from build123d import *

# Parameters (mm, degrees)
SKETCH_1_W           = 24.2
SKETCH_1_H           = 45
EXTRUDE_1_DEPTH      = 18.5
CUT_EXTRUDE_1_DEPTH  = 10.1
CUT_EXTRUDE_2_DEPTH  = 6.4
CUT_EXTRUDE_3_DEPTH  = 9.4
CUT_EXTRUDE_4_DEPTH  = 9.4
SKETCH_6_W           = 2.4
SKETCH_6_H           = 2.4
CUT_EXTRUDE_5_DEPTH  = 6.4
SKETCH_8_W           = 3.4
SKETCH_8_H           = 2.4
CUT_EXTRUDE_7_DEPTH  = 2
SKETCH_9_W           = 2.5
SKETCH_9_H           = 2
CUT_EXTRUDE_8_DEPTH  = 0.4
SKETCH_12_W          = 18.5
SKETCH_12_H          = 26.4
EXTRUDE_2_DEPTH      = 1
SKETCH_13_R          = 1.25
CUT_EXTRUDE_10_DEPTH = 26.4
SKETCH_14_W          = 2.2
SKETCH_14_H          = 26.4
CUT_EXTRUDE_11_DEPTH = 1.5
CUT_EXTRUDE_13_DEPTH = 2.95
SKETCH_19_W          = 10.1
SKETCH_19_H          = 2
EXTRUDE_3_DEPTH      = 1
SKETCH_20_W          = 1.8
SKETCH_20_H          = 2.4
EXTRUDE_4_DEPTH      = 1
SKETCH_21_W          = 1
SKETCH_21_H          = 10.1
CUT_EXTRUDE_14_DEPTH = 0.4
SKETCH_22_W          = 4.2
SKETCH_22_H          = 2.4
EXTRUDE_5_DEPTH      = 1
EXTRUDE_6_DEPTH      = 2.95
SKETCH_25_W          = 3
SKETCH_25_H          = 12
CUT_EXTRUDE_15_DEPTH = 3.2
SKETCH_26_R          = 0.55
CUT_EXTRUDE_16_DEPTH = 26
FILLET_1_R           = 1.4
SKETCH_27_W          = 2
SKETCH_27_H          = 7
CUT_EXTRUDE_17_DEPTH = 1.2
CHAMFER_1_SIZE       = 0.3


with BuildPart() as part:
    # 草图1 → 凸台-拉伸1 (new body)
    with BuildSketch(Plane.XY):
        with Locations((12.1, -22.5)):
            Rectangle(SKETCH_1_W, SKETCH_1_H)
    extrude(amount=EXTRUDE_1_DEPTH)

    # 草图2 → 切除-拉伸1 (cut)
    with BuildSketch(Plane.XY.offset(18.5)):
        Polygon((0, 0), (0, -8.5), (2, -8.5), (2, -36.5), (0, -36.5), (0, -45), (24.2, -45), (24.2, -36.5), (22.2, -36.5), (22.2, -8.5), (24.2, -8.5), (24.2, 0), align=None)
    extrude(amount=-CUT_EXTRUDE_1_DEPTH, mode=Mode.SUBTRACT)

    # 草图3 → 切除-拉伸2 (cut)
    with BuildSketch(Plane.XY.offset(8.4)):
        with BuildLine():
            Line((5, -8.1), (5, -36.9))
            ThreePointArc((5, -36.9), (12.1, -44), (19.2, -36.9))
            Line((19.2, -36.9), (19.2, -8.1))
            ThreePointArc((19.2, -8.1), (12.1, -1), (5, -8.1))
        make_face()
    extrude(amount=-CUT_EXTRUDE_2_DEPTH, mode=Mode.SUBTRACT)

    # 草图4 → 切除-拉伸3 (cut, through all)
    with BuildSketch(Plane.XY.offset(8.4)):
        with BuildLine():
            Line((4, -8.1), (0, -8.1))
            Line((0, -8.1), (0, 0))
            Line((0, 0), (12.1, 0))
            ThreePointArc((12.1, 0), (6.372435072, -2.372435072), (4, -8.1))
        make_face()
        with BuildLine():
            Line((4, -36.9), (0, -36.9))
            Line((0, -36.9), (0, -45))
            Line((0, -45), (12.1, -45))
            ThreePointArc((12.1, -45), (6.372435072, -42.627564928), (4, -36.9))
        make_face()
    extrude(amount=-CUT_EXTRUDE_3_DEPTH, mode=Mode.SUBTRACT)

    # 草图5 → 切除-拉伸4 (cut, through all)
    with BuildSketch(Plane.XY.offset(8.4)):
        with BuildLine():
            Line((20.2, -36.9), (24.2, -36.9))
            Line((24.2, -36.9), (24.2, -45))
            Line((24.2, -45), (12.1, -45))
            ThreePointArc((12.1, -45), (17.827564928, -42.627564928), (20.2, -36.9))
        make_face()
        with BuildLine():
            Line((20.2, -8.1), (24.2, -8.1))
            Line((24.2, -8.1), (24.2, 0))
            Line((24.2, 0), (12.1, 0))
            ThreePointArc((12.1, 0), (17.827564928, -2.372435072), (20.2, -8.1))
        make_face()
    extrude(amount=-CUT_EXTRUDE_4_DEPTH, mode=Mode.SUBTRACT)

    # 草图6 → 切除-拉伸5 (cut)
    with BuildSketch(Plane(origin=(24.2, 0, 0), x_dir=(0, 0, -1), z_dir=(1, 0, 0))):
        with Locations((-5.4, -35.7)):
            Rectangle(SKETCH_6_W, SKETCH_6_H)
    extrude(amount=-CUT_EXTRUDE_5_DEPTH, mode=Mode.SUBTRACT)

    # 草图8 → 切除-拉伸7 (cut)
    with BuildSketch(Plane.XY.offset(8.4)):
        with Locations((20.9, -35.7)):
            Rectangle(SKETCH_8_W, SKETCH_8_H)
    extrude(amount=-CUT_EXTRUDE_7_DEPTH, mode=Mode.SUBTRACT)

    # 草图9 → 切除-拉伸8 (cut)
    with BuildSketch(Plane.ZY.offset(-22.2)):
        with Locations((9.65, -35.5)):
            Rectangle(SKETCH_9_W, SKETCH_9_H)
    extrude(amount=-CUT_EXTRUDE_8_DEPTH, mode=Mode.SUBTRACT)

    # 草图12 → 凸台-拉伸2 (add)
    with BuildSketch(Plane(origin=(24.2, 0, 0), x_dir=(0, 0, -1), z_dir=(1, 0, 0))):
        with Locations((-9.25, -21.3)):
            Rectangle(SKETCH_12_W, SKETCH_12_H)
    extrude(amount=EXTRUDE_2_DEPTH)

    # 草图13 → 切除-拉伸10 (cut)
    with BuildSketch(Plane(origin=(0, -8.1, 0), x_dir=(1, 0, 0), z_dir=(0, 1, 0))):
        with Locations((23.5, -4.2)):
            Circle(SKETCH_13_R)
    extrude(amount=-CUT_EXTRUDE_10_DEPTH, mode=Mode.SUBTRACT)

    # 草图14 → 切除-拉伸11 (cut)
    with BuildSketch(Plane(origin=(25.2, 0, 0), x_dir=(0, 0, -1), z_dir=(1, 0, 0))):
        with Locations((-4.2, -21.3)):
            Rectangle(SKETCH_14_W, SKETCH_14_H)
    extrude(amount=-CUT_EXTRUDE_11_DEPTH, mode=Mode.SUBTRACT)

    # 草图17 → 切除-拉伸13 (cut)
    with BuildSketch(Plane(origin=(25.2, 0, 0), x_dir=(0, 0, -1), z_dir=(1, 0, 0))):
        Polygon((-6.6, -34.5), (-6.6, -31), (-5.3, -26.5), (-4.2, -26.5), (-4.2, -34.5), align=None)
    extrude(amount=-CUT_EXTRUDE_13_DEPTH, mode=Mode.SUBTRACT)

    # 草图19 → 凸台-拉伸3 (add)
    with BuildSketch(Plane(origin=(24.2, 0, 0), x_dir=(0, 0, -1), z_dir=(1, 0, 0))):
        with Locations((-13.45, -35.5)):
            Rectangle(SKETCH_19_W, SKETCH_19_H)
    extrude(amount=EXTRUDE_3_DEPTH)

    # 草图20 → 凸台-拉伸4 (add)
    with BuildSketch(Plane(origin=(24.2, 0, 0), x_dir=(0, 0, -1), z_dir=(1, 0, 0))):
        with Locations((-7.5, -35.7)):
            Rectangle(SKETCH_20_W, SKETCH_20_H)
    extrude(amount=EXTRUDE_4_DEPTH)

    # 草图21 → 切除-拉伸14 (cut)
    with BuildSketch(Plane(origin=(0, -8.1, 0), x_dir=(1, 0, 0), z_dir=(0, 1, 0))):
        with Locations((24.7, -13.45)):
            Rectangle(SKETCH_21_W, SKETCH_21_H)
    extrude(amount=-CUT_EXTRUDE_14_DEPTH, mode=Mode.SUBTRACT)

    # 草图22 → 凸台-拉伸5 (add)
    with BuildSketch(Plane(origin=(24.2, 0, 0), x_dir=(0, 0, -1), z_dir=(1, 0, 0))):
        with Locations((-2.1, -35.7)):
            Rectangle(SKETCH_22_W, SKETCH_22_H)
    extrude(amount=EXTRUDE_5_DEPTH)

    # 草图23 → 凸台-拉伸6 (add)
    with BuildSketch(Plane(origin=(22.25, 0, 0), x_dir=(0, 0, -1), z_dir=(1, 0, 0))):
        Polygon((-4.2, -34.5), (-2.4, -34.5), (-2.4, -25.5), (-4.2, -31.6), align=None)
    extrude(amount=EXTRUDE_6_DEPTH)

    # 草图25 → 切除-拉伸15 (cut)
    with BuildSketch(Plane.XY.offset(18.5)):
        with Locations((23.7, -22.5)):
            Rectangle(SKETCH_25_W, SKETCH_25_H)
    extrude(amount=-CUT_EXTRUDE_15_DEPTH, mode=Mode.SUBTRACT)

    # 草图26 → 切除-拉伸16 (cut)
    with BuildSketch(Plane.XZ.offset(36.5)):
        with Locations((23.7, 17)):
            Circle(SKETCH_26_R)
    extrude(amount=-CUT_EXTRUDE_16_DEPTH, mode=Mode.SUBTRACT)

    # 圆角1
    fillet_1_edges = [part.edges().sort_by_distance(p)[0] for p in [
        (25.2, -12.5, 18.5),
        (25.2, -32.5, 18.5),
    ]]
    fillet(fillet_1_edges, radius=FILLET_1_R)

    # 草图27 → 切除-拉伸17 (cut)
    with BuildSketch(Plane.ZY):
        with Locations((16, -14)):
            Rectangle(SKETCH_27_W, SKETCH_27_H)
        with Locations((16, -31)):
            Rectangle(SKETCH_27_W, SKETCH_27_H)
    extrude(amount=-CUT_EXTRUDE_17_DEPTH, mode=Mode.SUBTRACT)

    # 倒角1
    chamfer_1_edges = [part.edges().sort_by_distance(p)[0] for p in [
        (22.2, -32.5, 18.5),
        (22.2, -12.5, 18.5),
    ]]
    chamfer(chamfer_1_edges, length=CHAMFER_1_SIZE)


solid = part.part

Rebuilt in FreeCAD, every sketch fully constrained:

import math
import FreeCAD as App
import Part
import Sketcher
Q = App.Units.Quantity


def edges_at(feature, points):
    """Names of the edges that pass closest to the given points."""
    edges = feature.Shape.Edges
    near = lambda p: min(range(len(edges)), key=lambda i: edges[i].distToShape(Part.Vertex(*p))[0])
    return sorted({f"Edge{near(p) + 1}" for p in points})

doc = App.newDocument("Part")
body = doc.addObject("PartDesign::Body", "Body")

# Sketch on XY plane
sketch1 = body.newObject("Sketcher::SketchObject", "Sketch")
sketch1.AttachmentSupport = (doc.getObject("XY_Plane"), [""])
sketch1.MapMode = "FlatFace"
sketch1.addGeometry(Part.LineSegment(App.Vector(0, 0, 0), App.Vector(0, -45, 0)), False)
sketch1.addGeometry(Part.LineSegment(App.Vector(0, -45, 0), App.Vector(24, -45, 0)), False)
sketch1.addGeometry(Part.LineSegment(App.Vector(24, -45, 0), App.Vector(24, 0, 0)), False)
sketch1.addGeometry(Part.LineSegment(App.Vector(24, 0, 0), App.Vector(0, 0, 0)), False)
sketch1.addConstraint(Sketcher.Constraint("Coincident", 0, 2, 1, 1))
sketch1.addConstraint(Sketcher.Constraint("Coincident", 1, 2, 2, 1))
sketch1.addConstraint(Sketcher.Constraint("Coincident", 2, 2, 3, 1))
sketch1.addConstraint(Sketcher.Constraint("Coincident", 3, 2, 0, 1))
sketch1.addConstraint(Sketcher.Constraint("Vertical", 0))
sketch1.addConstraint(Sketcher.Constraint("Horizontal", 1))
sketch1.addConstraint(Sketcher.Constraint("Vertical", 2))
sketch1.addConstraint(Sketcher.Constraint("Horizontal", 3))
sketch1.addConstraint(Sketcher.Constraint("Coincident", 3, 2, -1, 1))
sketch1.addConstraint(Sketcher.Constraint("DistanceY", 0, 2, 0, 1, Q("45 mm")))
sketch1.addConstraint(Sketcher.Constraint("DistanceX", 1, 1, 1, 2, Q("24.2 mm")))
pad1 = body.newObject("PartDesign::Pad", "Pad")
pad1.Profile = sketch1
pad1.Length = 18.5

# Sketch on XY plane
sketch2 = body.newObject("Sketcher::SketchObject", "Sketch001")
sketch2.AttachmentSupport = (doc.getObject("XY_Plane"), [""])
sketch2.MapMode = "FlatFace"
sketch2.AttachmentOffset = App.Placement(App.Vector(0, 0, 18.5), App.Rotation())
sketch2.addGeometry(Part.LineSegment(App.Vector(0, 0, 0), App.Vector(0, -8.5, 0)), False)
sketch2.addGeometry(Part.LineSegment(App.Vector(0, -8.5, 0), App.Vector(2, -8.5, 0)), False)
sketch2.addGeometry(Part.LineSegment(App.Vector(2, -8.5, 0), App.Vector(2, -36.5, 0)), False)
sketch2.addGeometry(Part.LineSegment(App.Vector(2, -36.5, 0), App.Vector(0, -36.5, 0)), False)
sketch2.addGeometry(Part.LineSegment(App.Vector(0, -36.5, 0), App.Vector(0, -45, 0)), False)
sketch2.addGeometry(Part.LineSegment(App.Vector(0, -45, 0), App.Vector(24.2, -45, 0)), False)
sketch2.addGeometry(Part.LineSegment(App.Vector(24.2, -45, 0), App.Vector(24.2, -36.5, 0)), False)
sketch2.addGeometry(Part.LineSegment(App.Vector(24.2, -36.5, 0), App.Vector(22.2, -36.5, 0)), False)
sketch2.addGeometry(Part.LineSegment(App.Vector(22.2, -36.5, 0), App.Vector(22.2, -8.5, 0)), False)
sketch2.addGeometry(Part.LineSegment(App.Vector(22.2, -8.5, 0), App.Vector(24.2, -8.5, 0)), False)
sketch2.addGeometry(Part.LineSegment(App.Vector(24.2, -8.5, 0), App.Vector(24.2, 0, 0)), False)
sketch2.addGeometry(Part.LineSegment(App.Vector(24.2, 0, 0), App.Vector(0, 0, 0)), False)
sketch2.addConstraint(Sketcher.Constraint("Coincident", 0, 2, 1, 1))
sketch2.addConstraint(Sketcher.Constraint("Coincident", 1, 2, 2, 1))
sketch2.addConstraint(Sketcher.Constraint("Coincident", 2, 2, 3, 1))
sketch2.addConstraint(Sketcher.Constraint("Coincident", 3, 2, 4, 1))
sketch2.addConstraint(Sketcher.Constraint("Coincident", 4, 2, 5, 1))
sketch2.addConstraint(Sketcher.Constraint("Coincident", 5, 2, 6, 1))
sketch2.addConstraint(Sketcher.Constraint("Coincident", 6, 2, 7, 1))
sketch2.addConstraint(Sketcher.Constraint("Coincident", 7, 2, 8, 1))
sketch2.addConstraint(Sketcher.Constraint("Coincident", 8, 2, 9, 1))
sketch2.addConstraint(Sketcher.Constraint("Coincident", 9, 2, 10, 1))
sketch2.addConstraint(Sketcher.Constraint("Coincident", 10, 2, 11, 1))
sketch2.addConstraint(Sketcher.Constraint("Coincident", 11, 2, 0, 1))
sketch2.addConstraint(Sketcher.Constraint("Vertical", 0))
sketch2.addConstraint(Sketcher.Constraint("Horizontal", 1))
sketch2.addConstraint(Sketcher.Constraint("Vertical", 2))
sketch2.addConstraint(Sketcher.Constraint("Horizontal", 3))
sketch2.addConstraint(Sketcher.Constraint("Vertical", 4))
sketch2.addConstraint(Sketcher.Constraint("Horizontal", 5))
sketch2.addConstraint(Sketcher.Constraint("Vertical", 6))
sketch2.addConstraint(Sketcher.Constraint("Horizontal", 7))
sketch2.addConstraint(Sketcher.Constraint("Vertical", 8))
sketch2.addConstraint(Sketcher.Constraint("Horizontal", 9))
sketch2.addConstraint(Sketcher.Constraint("Vertical", 10))
sketch2.addConstraint(Sketcher.Constraint("Horizontal", 11))
sketch2.addConstraint(Sketcher.Constraint("Coincident", 11, 2, -1, 1))
sketch2.addConstraint(Sketcher.Constraint("PointOnObject", 3, 2, -2))
sketch2.addConstraint(Sketcher.Constraint("Horizontal", 3, 2, 6, 2))
sketch2.addConstraint(Sketcher.Constraint("Horizontal", 1, 2, 8, 2))
sketch2.addConstraint(Sketcher.Constraint("Vertical", 6, 2, 9, 2))
sketch2.addConstraint(Sketcher.Constraint("Equal", 3, 7))
sketch2.addConstraint(Sketcher.Constraint("Equal", 0, 4))
sketch2.addConstraint(Sketcher.Constraint("DistanceX", 1, 1, 1, 2, Q("2 mm")))
sketch2.addConstraint(Sketcher.Constraint("DistanceY", 2, 2, 2, 1, Q("28 mm")))
sketch2.addConstraint(Sketcher.Constraint("DistanceX", 5, 1, 5, 2, Q("24.2 mm")))
sketch2.addConstraint(Sketcher.Constraint("DistanceY", 0, 2, 0, 1, Q("8.5 mm")))
pocket1 = body.newObject("PartDesign::Pocket", "Pocket")
pocket1.Profile = sketch2
pocket1.Length = 10.1

# Sketch on XY plane
sketch3 = body.newObject("Sketcher::SketchObject", "Sketch002")
sketch3.AttachmentSupport = (doc.getObject("XY_Plane"), [""])
sketch3.MapMode = "FlatFace"
sketch3.AttachmentOffset = App.Placement(App.Vector(0, 0, 8.4), App.Rotation())
sketch3.addGeometry(Part.LineSegment(App.Vector(5, -8, 0), App.Vector(5, -37, 0)), False)
sketch3.addGeometry(Part.ArcOfCircle(Part.Circle(App.Vector(12, -37, 0), App.Vector(0, 0, 1), 7), math.radians(180), math.radians(360)), False)
sketch3.addGeometry(Part.LineSegment(App.Vector(19, -37, 0), App.Vector(19, -8, 0)), False)
sketch3.addGeometry(Part.ArcOfCircle(Part.Circle(App.Vector(12, -8, 0), App.Vector(0, 0, 1), 7), math.radians(0), math.radians(180)), False)
sketch3.addConstraint(Sketcher.Constraint("Tangent", 0, 2, 1, 1))
sketch3.addConstraint(Sketcher.Constraint("Tangent", 1, 2, 2, 1))
sketch3.addConstraint(Sketcher.Constraint("Tangent", 2, 2, 3, 1))
sketch3.addConstraint(Sketcher.Constraint("Tangent", 3, 2, 0, 1))
sketch3.addConstraint(Sketcher.Constraint("Vertical", 0))
sketch3.addConstraint(Sketcher.Constraint("Vertical", 2))
sketch3.addConstraint(Sketcher.Constraint("Radius", 1, Q("7.1 mm")))
sketch3.addConstraint(Sketcher.Constraint("DistanceY", 0, 2, 0, 1, Q("28.8 mm")))
sketch3.addConstraint(Sketcher.Constraint("DistanceX", -1, 1, 0, 2, Q("5 mm")))
sketch3.addConstraint(Sketcher.Constraint("DistanceY", 1, 3, -1, 1, Q("36.9 mm")))
pocket2 = body.newObject("PartDesign::Pocket", "Pocket001")
pocket2.Profile = sketch3
pocket2.Length = 6.4

# Sketch on XY plane
sketch4 = body.newObject("Sketcher::SketchObject", "Sketch003")
sketch4.AttachmentSupport = (doc.getObject("XY_Plane"), [""])
sketch4.MapMode = "FlatFace"
sketch4.AttachmentOffset = App.Placement(App.Vector(0, 0, 8.4), App.Rotation())
sketch4.addGeometry(Part.LineSegment(App.Vector(0, -8.1, 0), App.Vector(4, -8.1, 0)), False)
sketch4.addGeometry(Part.ArcOfCircle(Part.Circle(App.Vector(12.1, -8.1, 0), App.Vector(0, 0, 1), 8.1), math.radians(90), math.radians(180)), False)
sketch4.addGeometry(Part.LineSegment(App.Vector(12.1, 0, 0), App.Vector(0, 0, 0)), False)
sketch4.addGeometry(Part.LineSegment(App.Vector(0, 0, 0), App.Vector(0, -8.1, 0)), False)
sketch4.addGeometry(Part.LineSegment(App.Vector(4, -36.9, 0), App.Vector(0, -36.9, 0)), False)
sketch4.addGeometry(Part.LineSegment(App.Vector(0, -36.9, 0), App.Vector(0, -45, 0)), False)
sketch4.addGeometry(Part.LineSegment(App.Vector(0, -45, 0), App.Vector(12.1, -45, 0)), False)
sketch4.addGeometry(Part.ArcOfCircle(Part.Circle(App.Vector(12.1, -36.9, 0), App.Vector(0, 0, 1), 8.1), math.radians(180), math.radians(270)), False)
sketch4.addConstraint(Sketcher.Constraint("Coincident", 0, 2, 1, 2))
sketch4.addConstraint(Sketcher.Constraint("Tangent", 1, 1, 2, 1))
sketch4.addConstraint(Sketcher.Constraint("Coincident", 2, 2, 3, 1))
sketch4.addConstraint(Sketcher.Constraint("Coincident", 3, 2, 0, 1))
sketch4.addConstraint(Sketcher.Constraint("Coincident", 4, 2, 5, 1))
sketch4.addConstraint(Sketcher.Constraint("Coincident", 5, 2, 6, 1))
sketch4.addConstraint(Sketcher.Constraint("Tangent", 6, 2, 7, 2))
sketch4.addConstraint(Sketcher.Constraint("Coincident", 7, 1, 4, 1))
sketch4.addConstraint(Sketcher.Constraint("Horizontal", 0))
sketch4.addConstraint(Sketcher.Constraint("Horizontal", 2))
sketch4.addConstraint(Sketcher.Constraint("Vertical", 3))
sketch4.addConstraint(Sketcher.Constraint("Horizontal", 4))
sketch4.addConstraint(Sketcher.Constraint("Vertical", 5))
sketch4.addConstraint(Sketcher.Constraint("Horizontal", 6))
sketch4.addConstraint(Sketcher.Constraint("Coincident", 2, 2, -1, 1))
sketch4.addConstraint(Sketcher.Constraint("Equal", 1, 7))
sketch4.addConstraint(Sketcher.Constraint("PointOnObject", 4, 2, -2))
sketch4.addConstraint(Sketcher.Constraint("Horizontal", 1, 3, 0, 2))
sketch4.addConstraint(Sketcher.Constraint("Horizontal", 7, 3, 4, 2))
sketch4.addConstraint(Sketcher.Constraint("Vertical", 1, 3, 7, 3))
sketch4.addConstraint(Sketcher.Constraint("Radius", 1, Q("8.1 mm")))
sketch4.addConstraint(Sketcher.Constraint("DistanceX", 0, 1, 0, 2, Q("4 mm")))
sketch4.addConstraint(Sketcher.Constraint("DistanceY", 5, 2, -1, 1, Q("45 mm")))
pocket3 = body.newObject("PartDesign::Pocket", "Pocket002")
pocket3.Profile = sketch4
pocket3.Type = "ThroughAll"

# Sketch on XY plane
sketch5 = body.newObject("Sketcher::SketchObject", "Sketch004")
sketch5.AttachmentSupport = (doc.getObject("XY_Plane"), [""])
sketch5.MapMode = "FlatFace"
sketch5.AttachmentOffset = App.Placement(App.Vector(0, 0, 8.4), App.Rotation())
sketch5.addGeometry(Part.LineSegment(App.Vector(24.2, -36.9, 0), App.Vector(20.2, -36.9, 0)), False)
sketch5.addGeometry(Part.ArcOfCircle(Part.Circle(App.Vector(12.1, -36.9, 0), App.Vector(0, 0, 1), 8.1), math.radians(-90), math.radians(0)), False)
sketch5.addGeometry(Part.LineSegment(App.Vector(12.1, -45, 0), App.Vector(24.2, -45, 0)), False)
sketch5.addGeometry(Part.LineSegment(App.Vector(24.2, -45, 0), App.Vector(24.2, -36.9, 0)), False)
sketch5.addGeometry(Part.LineSegment(App.Vector(20.2, -8.1, 0), App.Vector(24.2, -8.1, 0)), False)
sketch5.addGeometry(Part.LineSegment(App.Vector(24.2, -8.1, 0), App.Vector(24.2, 0, 0)), False)
sketch5.addGeometry(Part.LineSegment(App.Vector(24.2, 0, 0), App.Vector(12.1, 0, 0)), False)
sketch5.addGeometry(Part.ArcOfCircle(Part.Circle(App.Vector(12.1, -8.1, 0), App.Vector(0, 0, 1), 8.1), math.radians(0), math.radians(90)), False)
sketch5.addConstraint(Sketcher.Constraint("Coincident", 0, 2, 1, 2))
sketch5.addConstraint(Sketcher.Constraint("Tangent", 1, 1, 2, 1))
sketch5.addConstraint(Sketcher.Constraint("Coincident", 2, 2, 3, 1))
sketch5.addConstraint(Sketcher.Constraint("Coincident", 3, 2, 0, 1))
sketch5.addConstraint(Sketcher.Constraint("Coincident", 4, 2, 5, 1))
sketch5.addConstraint(Sketcher.Constraint("Coincident", 5, 2, 6, 1))
sketch5.addConstraint(Sketcher.Constraint("Tangent", 6, 2, 7, 2))
sketch5.addConstraint(Sketcher.Constraint("Coincident", 7, 1, 4, 1))
sketch5.addConstraint(Sketcher.Constraint("Horizontal", 0))
sketch5.addConstraint(Sketcher.Constraint("Horizontal", 2))
sketch5.addConstraint(Sketcher.Constraint("Vertical", 3))
sketch5.addConstraint(Sketcher.Constraint("Horizontal", 4))
sketch5.addConstraint(Sketcher.Constraint("Vertical", 5))
sketch5.addConstraint(Sketcher.Constraint("Horizontal", 6))
sketch5.addConstraint(Sketcher.Constraint("Equal", 1, 7))
sketch5.addConstraint(Sketcher.Constraint("PointOnObject", 5, 2, -1))
sketch5.addConstraint(Sketcher.Constraint("Horizontal", 1, 3, 0, 2))
sketch5.addConstraint(Sketcher.Constraint("Horizontal", 7, 3, 4, 2))
sketch5.addConstraint(Sketcher.Constraint("Vertical", 1, 3, 7, 3))
sketch5.addConstraint(Sketcher.Constraint("Vertical", 3, 2, 4, 2))
sketch5.addConstraint(Sketcher.Constraint("Radius", 1, Q("8.1 mm")))
sketch5.addConstraint(Sketcher.Constraint("DistanceX", 0, 2, 0, 1, Q("4 mm")))
sketch5.addConstraint(Sketcher.Constraint("DistanceY", 1, 1, -1, 1, Q("45 mm")))
sketch5.addConstraint(Sketcher.Constraint("DistanceX", -1, 1, 1, 3, Q("12.1 mm")))
pocket4 = body.newObject("PartDesign::Pocket", "Pocket003")
pocket4.Profile = sketch5
pocket4.Type = "ThroughAll"

# Sketch on YZ plane
sketch6 = body.newObject("Sketcher::SketchObject", "Sketch005")
sketch6.AttachmentSupport = (doc.getObject("YZ_Plane"), [""])
sketch6.MapMode = "FlatFace"
sketch6.AttachmentOffset = App.Placement(App.Vector(0, 0, 24.2), App.Rotation())
sketch6.addGeometry(Part.LineSegment(App.Vector(-34.5, 6.6, 0), App.Vector(-36.9, 6.6, 0)), False)
sketch6.addGeometry(Part.LineSegment(App.Vector(-36.9, 6.6, 0), App.Vector(-36.9, 4.2, 0)), False)
sketch6.addGeometry(Part.LineSegment(App.Vector(-36.9, 4.2, 0), App.Vector(-34.5, 4.2, 0)), False)
sketch6.addGeometry(Part.LineSegment(App.Vector(-34.5, 4.2, 0), App.Vector(-34.5, 6.6, 0)), False)
sketch6.addConstraint(Sketcher.Constraint("Coincident", 0, 2, 1, 1))
sketch6.addConstraint(Sketcher.Constraint("Coincident", 1, 2, 2, 1))
sketch6.addConstraint(Sketcher.Constraint("Coincident", 2, 2, 3, 1))
sketch6.addConstraint(Sketcher.Constraint("Coincident", 3, 2, 0, 1))
sketch6.addConstraint(Sketcher.Constraint("Horizontal", 0))
sketch6.addConstraint(Sketcher.Constraint("Vertical", 1))
sketch6.addConstraint(Sketcher.Constraint("Horizontal", 2))
sketch6.addConstraint(Sketcher.Constraint("Vertical", 3))
sketch6.addConstraint(Sketcher.Constraint("Equal", 2, 1))
sketch6.addConstraint(Sketcher.Constraint("DistanceX", 0, 2, 0, 1, Q("2.4 mm")))
sketch6.addConstraint(Sketcher.Constraint("DistanceX", 0, 2, -1, 1, Q("36.9 mm")))
sketch6.addConstraint(Sketcher.Constraint("DistanceY", -1, 1, 0, 2, Q("6.6 mm")))
pocket5 = body.newObject("PartDesign::Pocket", "Pocket004")
pocket5.Profile = sketch6
pocket5.Length = 6.4

# Sketch on XY plane
sketch7 = body.newObject("Sketcher::SketchObject", "Sketch006")
sketch7.AttachmentSupport = (doc.getObject("XY_Plane"), [""])
sketch7.MapMode = "FlatFace"
sketch7.AttachmentOffset = App.Placement(App.Vector(0, 0, 8.4), App.Rotation())
sketch7.addGeometry(Part.LineSegment(App.Vector(19.2, -34.5, 0), App.Vector(19.2, -36.9, 0)), False)
sketch7.addGeometry(Part.LineSegment(App.Vector(19.2, -36.9, 0), App.Vector(22.6, -36.9, 0)), False)
sketch7.addGeometry(Part.LineSegment(App.Vector(22.6, -36.9, 0), App.Vector(22.6, -34.5, 0)), False)
sketch7.addGeometry(Part.LineSegment(App.Vector(22.6, -34.5, 0), App.Vector(19.2, -34.5, 0)), False)
sketch7.addConstraint(Sketcher.Constraint("Coincident", 0, 2, 1, 1))
sketch7.addConstraint(Sketcher.Constraint("Coincident", 1, 2, 2, 1))
sketch7.addConstraint(Sketcher.Constraint("Coincident", 2, 2, 3, 1))
sketch7.addConstraint(Sketcher.Constraint("Coincident", 3, 2, 0, 1))
sketch7.addConstraint(Sketcher.Constraint("Vertical", 0))
sketch7.addConstraint(Sketcher.Constraint("Horizontal", 1))
sketch7.addConstraint(Sketcher.Constraint("Vertical", 2))
sketch7.addConstraint(Sketcher.Constraint("Horizontal", 3))
sketch7.addConstraint(Sketcher.Constraint("DistanceX", 1, 1, 1, 2, Q("3.4 mm")))
sketch7.addConstraint(Sketcher.Constraint("DistanceY", 0, 2, 0, 1, Q("2.4 mm")))
sketch7.addConstraint(Sketcher.Constraint("DistanceX", -1, 1, 0, 2, Q("19.2 mm")))
sketch7.addConstraint(Sketcher.Constraint("DistanceY", 0, 2, -1, 1, Q("36.9 mm")))
pocket6 = body.newObject("PartDesign::Pocket", "Pocket005")
pocket6.Profile = sketch7
pocket6.Length = 2

# Sketch on YZ plane
sketch8 = body.newObject("Sketcher::SketchObject", "Sketch007")
sketch8.AttachmentSupport = (doc.getObject("YZ_Plane"), [""])
sketch8.MapMode = "FlatFace"
sketch8.AttachmentOffset = App.Placement(App.Vector(0, 0, 22.2), App.Rotation())
sketch8.addGeometry(Part.LineSegment(App.Vector(-34.5, 8.4, 0), App.Vector(-36.5, 8.4, 0)), False)
sketch8.addGeometry(Part.LineSegment(App.Vector(-36.5, 8.4, 0), App.Vector(-36.5, 10.9, 0)), False)
sketch8.addGeometry(Part.LineSegment(App.Vector(-36.5, 10.9, 0), App.Vector(-34.5, 10.9, 0)), False)
sketch8.addGeometry(Part.LineSegment(App.Vector(-34.5, 10.9, 0), App.Vector(-34.5, 8.4, 0)), False)
sketch8.addConstraint(Sketcher.Constraint("Coincident", 0, 2, 1, 1))
sketch8.addConstraint(Sketcher.Constraint("Coincident", 1, 2, 2, 1))
sketch8.addConstraint(Sketcher.Constraint("Coincident", 2, 2, 3, 1))
sketch8.addConstraint(Sketcher.Constraint("Coincident", 3, 2, 0, 1))
sketch8.addConstraint(Sketcher.Constraint("Horizontal", 0))
sketch8.addConstraint(Sketcher.Constraint("Vertical", 1))
sketch8.addConstraint(Sketcher.Constraint("Horizontal", 2))
sketch8.addConstraint(Sketcher.Constraint("Vertical", 3))
sketch8.addConstraint(Sketcher.Constraint("DistanceX", 0, 2, 0, 1, Q("2 mm")))
sketch8.addConstraint(Sketcher.Constraint("DistanceY", 1, 1, 1, 2, Q("2.5 mm")))
sketch8.addConstraint(Sketcher.Constraint("DistanceX", 0, 2, -1, 1, Q("36.5 mm")))
sketch8.addConstraint(Sketcher.Constraint("DistanceY", -1, 1, 0, 2, Q("8.4 mm")))
pocket7 = body.newObject("PartDesign::Pocket", "Pocket006")
pocket7.Profile = sketch8
pocket7.Length = 0.4
pocket7.Reversed = True

# Sketch on YZ plane
sketch9 = body.newObject("Sketcher::SketchObject", "Sketch008")
sketch9.AttachmentSupport = (doc.getObject("YZ_Plane"), [""])
sketch9.MapMode = "FlatFace"
sketch9.AttachmentOffset = App.Placement(App.Vector(0, 0, 24.2), App.Rotation())
sketch9.addGeometry(Part.LineSegment(App.Vector(-8, 18, 0), App.Vector(-34, 18, 0)), False)
sketch9.addGeometry(Part.LineSegment(App.Vector(-34, 18, 0), App.Vector(-34, 0, 0)), False)
sketch9.addGeometry(Part.LineSegment(App.Vector(-34, 0, 0), App.Vector(-8, 0, 0)), False)
sketch9.addGeometry(Part.LineSegment(App.Vector(-8, 0, 0), App.Vector(-8, 18, 0)), False)
sketch9.addConstraint(Sketcher.Constraint("Coincident", 0, 2, 1, 1))
sketch9.addConstraint(Sketcher.Constraint("Coincident", 1, 2, 2, 1))
sketch9.addConstraint(Sketcher.Constraint("Coincident", 2, 2, 3, 1))
sketch9.addConstraint(Sketcher.Constraint("Coincident", 3, 2, 0, 1))
sketch9.addConstraint(Sketcher.Constraint("Horizontal", 0))
sketch9.addConstraint(Sketcher.Constraint("Vertical", 1))
sketch9.addConstraint(Sketcher.Constraint("Horizontal", 2))
sketch9.addConstraint(Sketcher.Constraint("Vertical", 3))
sketch9.addConstraint(Sketcher.Constraint("PointOnObject", 1, 2, -1))
sketch9.addConstraint(Sketcher.Constraint("DistanceX", 0, 2, 0, 1, Q("26.4 mm")))
sketch9.addConstraint(Sketcher.Constraint("DistanceY", 1, 2, 1, 1, Q("18.5 mm")))
sketch9.addConstraint(Sketcher.Constraint("DistanceX", 0, 2, -1, 1, Q("34.5 mm")))
pad2 = body.newObject("PartDesign::Pad", "Pad001")
pad2.Profile = sketch9
pad2.Length = 1

# Sketch on XZ plane
sketch10 = body.newObject("Sketcher::SketchObject", "Sketch009")
sketch10.AttachmentSupport = (doc.getObject("XZ_Plane"), [""])
sketch10.MapMode = "FlatFace"
sketch10.AttachmentOffset = App.Placement(App.Vector(0, 0, 8.1), App.Rotation())
sketch10.addGeometry(Part.Circle(App.Vector(23.5, 4.2, 0), App.Vector(0, 0, 1), 1.2), False)
sketch10.addConstraint(Sketcher.Constraint("Diameter", 0, Q("2.5 mm")))
sketch10.addConstraint(Sketcher.Constraint("DistanceX", -1, 1, 0, 3, Q("23.5 mm")))
sketch10.addConstraint(Sketcher.Constraint("DistanceY", -1, 1, 0, 3, Q("4.2 mm")))
pocket8 = body.newObject("PartDesign::Pocket", "Pocket007")
pocket8.Profile = sketch10
pocket8.Length = 26.4
pocket8.Reversed = True

# Sketch on YZ plane
sketch11 = body.newObject("Sketcher::SketchObject", "Sketch010")
sketch11.AttachmentSupport = (doc.getObject("YZ_Plane"), [""])
sketch11.MapMode = "FlatFace"
sketch11.AttachmentOffset = App.Placement(App.Vector(0, 0, 25.2), App.Rotation())
sketch11.addGeometry(Part.LineSegment(App.Vector(-8.1, 5.3, 0), App.Vector(-34.5, 5.3, 0)), False)
sketch11.addGeometry(Part.LineSegment(App.Vector(-34.5, 5.3, 0), App.Vector(-34.5, 3.1, 0)), False)
sketch11.addGeometry(Part.LineSegment(App.Vector(-34.5, 3.1, 0), App.Vector(-8.1, 3.1, 0)), False)
sketch11.addGeometry(Part.LineSegment(App.Vector(-8.1, 3.1, 0), App.Vector(-8.1, 5.3, 0)), False)
sketch11.addConstraint(Sketcher.Constraint("Coincident", 0, 2, 1, 1))
sketch11.addConstraint(Sketcher.Constraint("Coincident", 1, 2, 2, 1))
sketch11.addConstraint(Sketcher.Constraint("Coincident", 2, 2, 3, 1))
sketch11.addConstraint(Sketcher.Constraint("Coincident", 3, 2, 0, 1))
sketch11.addConstraint(Sketcher.Constraint("Horizontal", 0))
sketch11.addConstraint(Sketcher.Constraint("Vertical", 1))
sketch11.addConstraint(Sketcher.Constraint("Horizontal", 2))
sketch11.addConstraint(Sketcher.Constraint("Vertical", 3))
sketch11.addConstraint(Sketcher.Constraint("DistanceX", 0, 2, 0, 1, Q("26.4 mm")))
sketch11.addConstraint(Sketcher.Constraint("DistanceY", 1, 2, 1, 1, Q("2.2 mm")))
sketch11.addConstraint(Sketcher.Constraint("DistanceX", 0, 2, -1, 1, Q("34.5 mm")))
sketch11.addConstraint(Sketcher.Constraint("DistanceY", -1, 1, 0, 2, Q("5.3 mm")))
pocket9 = body.newObject("PartDesign::Pocket", "Pocket008")
pocket9.Profile = sketch11
pocket9.Length = 1.5

# Sketch on YZ plane
sketch12 = body.newObject("Sketcher::SketchObject", "Sketch011")
sketch12.AttachmentSupport = (doc.getObject("YZ_Plane"), [""])
sketch12.MapMode = "FlatFace"
sketch12.AttachmentOffset = App.Placement(App.Vector(0, 0, 25.2), App.Rotation())
sketch12.addGeometry(Part.LineSegment(App.Vector(-31, 6.6, 0), App.Vector(-34.5, 6.6, 0)), False)
sketch12.addGeometry(Part.LineSegment(App.Vector(-34.5, 6.6, 0), App.Vector(-34.5, 4.2, 0)), False)
sketch12.addGeometry(Part.LineSegment(App.Vector(-34.5, 4.2, 0), App.Vector(-26.5, 4.2, 0)), False)
sketch12.addGeometry(Part.LineSegment(App.Vector(-26.5, 4.2, 0), App.Vector(-26.5, 5.3, 0)), False)
sketch12.addGeometry(Part.LineSegment(App.Vector(-26.5, 5.3, 0), App.Vector(-31, 6.6, 0)), False)
sketch12.addConstraint(Sketcher.Constraint("Coincident", 0, 2, 1, 1))
sketch12.addConstraint(Sketcher.Constraint("Coincident", 1, 2, 2, 1))
sketch12.addConstraint(Sketcher.Constraint("Coincident", 2, 2, 3, 1))
sketch12.addConstraint(Sketcher.Constraint("Coincident", 3, 2, 4, 1))
sketch12.addConstraint(Sketcher.Constraint("Coincident", 4, 2, 0, 1))
sketch12.addConstraint(Sketcher.Constraint("Horizontal", 0))
sketch12.addConstraint(Sketcher.Constraint("Vertical", 1))
sketch12.addConstraint(Sketcher.Constraint("Horizontal", 2))
sketch12.addConstraint(Sketcher.Constraint("Vertical", 3))
sketch12.addConstraint(Sketcher.Constraint("DistanceX", 2, 1, 2, 2, Q("8 mm")))
sketch12.addConstraint(Sketcher.Constraint("DistanceX", 0, 2, 0, 1, Q("3.5 mm")))
sketch12.addConstraint(Sketcher.Constraint("DistanceY", 1, 2, 1, 1, Q("2.4 mm")))
sketch12.addConstraint(Sketcher.Constraint("DistanceY", 3, 1, 3, 2, Q("1.1 mm")))
sketch12.addConstraint(Sketcher.Constraint("DistanceX", 4, 2, -1, 1, Q("31 mm")))
sketch12.addConstraint(Sketcher.Constraint("DistanceY", -1, 1, 0, 2, Q("6.6 mm")))
pocket10 = body.newObject("PartDesign::Pocket", "Pocket009")
pocket10.Profile = sketch12
pocket10.Length = 2.95

# Sketch on YZ plane
sketch13 = body.newObject("Sketcher::SketchObject", "Sketch012")
sketch13.AttachmentSupport = (doc.getObject("YZ_Plane"), [""])
sketch13.MapMode = "FlatFace"
sketch13.AttachmentOffset = App.Placement(App.Vector(0, 0, 24.2), App.Rotation())
sketch13.addGeometry(Part.LineSegment(App.Vector(-34.5, 18.5, 0), App.Vector(-36.5, 18.5, 0)), False)
sketch13.addGeometry(Part.LineSegment(App.Vector(-36.5, 18.5, 0), App.Vector(-36.5, 8.4, 0)), False)
sketch13.addGeometry(Part.LineSegment(App.Vector(-36.5, 8.4, 0), App.Vector(-34.5, 8.4, 0)), False)
sketch13.addGeometry(Part.LineSegment(App.Vector(-34.5, 8.4, 0), App.Vector(-34.5, 18.5, 0)), False)
sketch13.addConstraint(Sketcher.Constraint("Coincident", 0, 2, 1, 1))
sketch13.addConstraint(Sketcher.Constraint("Coincident", 1, 2, 2, 1))
sketch13.addConstraint(Sketcher.Constraint("Coincident", 2, 2, 3, 1))
sketch13.addConstraint(Sketcher.Constraint("Coincident", 3, 2, 0, 1))
sketch13.addConstraint(Sketcher.Constraint("Horizontal", 0))
sketch13.addConstraint(Sketcher.Constraint("Vertical", 1))
sketch13.addConstraint(Sketcher.Constraint("Horizontal", 2))
sketch13.addConstraint(Sketcher.Constraint("Vertical", 3))
sketch13.addConstraint(Sketcher.Constraint("DistanceX", 0, 2, 0, 1, Q("2 mm")))
sketch13.addConstraint(Sketcher.Constraint("DistanceY", 1, 2, 1, 1, Q("10.1 mm")))
sketch13.addConstraint(Sketcher.Constraint("DistanceX", 0, 2, -1, 1, Q("36.5 mm")))
sketch13.addConstraint(Sketcher.Constraint("DistanceY", -1, 1, 0, 2, Q("18.5 mm")))
pad3 = body.newObject("PartDesign::Pad", "Pad002")
pad3.Profile = sketch13
pad3.Length = 1

# Sketch on YZ plane
sketch14 = body.newObject("Sketcher::SketchObject", "Sketch013")
sketch14.AttachmentSupport = (doc.getObject("YZ_Plane"), [""])
sketch14.MapMode = "FlatFace"
sketch14.AttachmentOffset = App.Placement(App.Vector(0, 0, 24.2), App.Rotation())
sketch14.addGeometry(Part.LineSegment(App.Vector(-34.5, 8.4, 0), App.Vector(-36.9, 8.4, 0)), False)
sketch14.addGeometry(Part.LineSegment(App.Vector(-36.9, 8.4, 0), App.Vector(-36.9, 6.6, 0)), False)
sketch14.addGeometry(Part.LineSegment(App.Vector(-36.9, 6.6, 0), App.Vector(-34.5, 6.6, 0)), False)
sketch14.addGeometry(Part.LineSegment(App.Vector(-34.5, 6.6, 0), App.Vector(-34.5, 8.4, 0)), False)
sketch14.addConstraint(Sketcher.Constraint("Coincident", 0, 2, 1, 1))
sketch14.addConstraint(Sketcher.Constraint("Coincident", 1, 2, 2, 1))
sketch14.addConstraint(Sketcher.Constraint("Coincident", 2, 2, 3, 1))
sketch14.addConstraint(Sketcher.Constraint("Coincident", 3, 2, 0, 1))
sketch14.addConstraint(Sketcher.Constraint("Horizontal", 0))
sketch14.addConstraint(Sketcher.Constraint("Vertical", 1))
sketch14.addConstraint(Sketcher.Constraint("Horizontal", 2))
sketch14.addConstraint(Sketcher.Constraint("Vertical", 3))
sketch14.addConstraint(Sketcher.Constraint("DistanceX", 0, 2, 0, 1, Q("2.4 mm")))
sketch14.addConstraint(Sketcher.Constraint("DistanceY", 1, 2, 1, 1, Q("1.8 mm")))
sketch14.addConstraint(Sketcher.Constraint("DistanceX", 0, 2, -1, 1, Q("36.9 mm")))
sketch14.addConstraint(Sketcher.Constraint("DistanceY", -1, 1, 0, 2, Q("8.4 mm")))
pad4 = body.newObject("PartDesign::Pad", "Pad003")
pad4.Profile = sketch14
pad4.Length = 1

# Sketch on XZ plane
sketch15 = body.newObject("Sketcher::SketchObject", "Sketch014")
sketch15.AttachmentSupport = (doc.getObject("XZ_Plane"), [""])
sketch15.MapMode = "FlatFace"
sketch15.AttachmentOffset = App.Placement(App.Vector(0, 0, 8.1), App.Rotation())
sketch15.addGeometry(Part.LineSegment(App.Vector(24.2, 8.4, 0), App.Vector(24.2, 18.5, 0)), False)
sketch15.addGeometry(Part.LineSegment(App.Vector(24.2, 18.5, 0), App.Vector(25.2, 18.5, 0)), False)
sketch15.addGeometry(Part.LineSegment(App.Vector(25.2, 18.5, 0), App.Vector(25.2, 8.4, 0)), False)
sketch15.addGeometry(Part.LineSegment(App.Vector(25.2, 8.4, 0), App.Vector(24.2, 8.4, 0)), False)
sketch15.addConstraint(Sketcher.Constraint("Coincident", 0, 2, 1, 1))
sketch15.addConstraint(Sketcher.Constraint("Coincident", 1, 2, 2, 1))
sketch15.addConstraint(Sketcher.Constraint("Coincident", 2, 2, 3, 1))
sketch15.addConstraint(Sketcher.Constraint("Coincident", 3, 2, 0, 1))
sketch15.addConstraint(Sketcher.Constraint("Vertical", 0))
sketch15.addConstraint(Sketcher.Constraint("Horizontal", 1))
sketch15.addConstraint(Sketcher.Constraint("Vertical", 2))
sketch15.addConstraint(Sketcher.Constraint("Horizontal", 3))
sketch15.addConstraint(Sketcher.Constraint("DistanceX", 1, 1, 1, 2, Q("1 mm")))
sketch15.addConstraint(Sketcher.Constraint("DistanceY", 0, 1, 0, 2, Q("10.1 mm")))
sketch15.addConstraint(Sketcher.Constraint("DistanceX", -1, 1, 0, 2, Q("24.2 mm")))
sketch15.addConstraint(Sketcher.Constraint("DistanceY", -1, 1, 0, 2, Q("18.5 mm")))
pocket11 = body.newObject("PartDesign::Pocket", "Pocket010")
pocket11.Profile = sketch15
pocket11.Length = 0.4
pocket11.Reversed = True

# Sketch on YZ plane
sketch16 = body.newObject("Sketcher::SketchObject", "Sketch015")
sketch16.AttachmentSupport = (doc.getObject("YZ_Plane"), [""])
sketch16.MapMode = "FlatFace"
sketch16.AttachmentOffset = App.Placement(App.Vector(0, 0, 24.2), App.Rotation())
sketch16.addGeometry(Part.LineSegment(App.Vector(-34.5, 4.2, 0), App.Vector(-36.9, 4.2, 0)), False)
sketch16.addGeometry(Part.LineSegment(App.Vector(-36.9, 4.2, 0), App.Vector(-36.9, 0, 0)), False)
sketch16.addGeometry(Part.LineSegment(App.Vector(-36.9, 0, 0), App.Vector(-34.5, 0, 0)), False)
sketch16.addGeometry(Part.LineSegment(App.Vector(-34.5, 0, 0), App.Vector(-34.5, 4.2, 0)), False)
sketch16.addConstraint(Sketcher.Constraint("Coincident", 0, 2, 1, 1))
sketch16.addConstraint(Sketcher.Constraint("Coincident", 1, 2, 2, 1))
sketch16.addConstraint(Sketcher.Constraint("Coincident", 2, 2, 3, 1))
sketch16.addConstraint(Sketcher.Constraint("Coincident", 3, 2, 0, 1))
sketch16.addConstraint(Sketcher.Constraint("Horizontal", 0))
sketch16.addConstraint(Sketcher.Constraint("Vertical", 1))
sketch16.addConstraint(Sketcher.Constraint("Horizontal", 2))
sketch16.addConstraint(Sketcher.Constraint("Vertical", 3))
sketch16.addConstraint(Sketcher.Constraint("PointOnObject", 1, 2, -1))
sketch16.addConstraint(Sketcher.Constraint("DistanceX", 0, 2, 0, 1, Q("2.4 mm")))
sketch16.addConstraint(Sketcher.Constraint("DistanceY", 1, 2, 1, 1, Q("4.2 mm")))
sketch16.addConstraint(Sketcher.Constraint("DistanceX", 0, 2, -1, 1, Q("36.9 mm")))
pad5 = body.newObject("PartDesign::Pad", "Pad004")
pad5.Profile = sketch16
pad5.Length = 1

# Sketch on YZ plane
sketch17 = body.newObject("Sketcher::SketchObject", "Sketch016")
sketch17.AttachmentSupport = (doc.getObject("YZ_Plane"), [""])
sketch17.MapMode = "FlatFace"
sketch17.AttachmentOffset = App.Placement(App.Vector(0, 0, 22.25), App.Rotation())
sketch17.addGeometry(Part.LineSegment(App.Vector(-34.5, 4.2, 0), App.Vector(-34.5, 2.4, 0)), False)
sketch17.addGeometry(Part.LineSegment(App.Vector(-34.5, 2.4, 0), App.Vector(-25.5, 2.4, 0)), False)
sketch17.addGeometry(Part.LineSegment(App.Vector(-25.5, 2.4, 0), App.Vector(-31.6, 4.2, 0)), False)
sketch17.addGeometry(Part.LineSegment(App.Vector(-31.6, 4.2, 0), App.Vector(-34.5, 4.2, 0)), False)
sketch17.addConstraint(Sketcher.Constraint("Coincident", 0, 2, 1, 1))
sketch17.addConstraint(Sketcher.Constraint("Coincident", 1, 2, 2, 1))
sketch17.addConstraint(Sketcher.Constraint("Coincident", 2, 2, 3, 1))
sketch17.addConstraint(Sketcher.Constraint("Coincident", 3, 2, 0, 1))
sketch17.addConstraint(Sketcher.Constraint("Vertical", 0))
sketch17.addConstraint(Sketcher.Constraint("Horizontal", 1))
sketch17.addConstraint(Sketcher.Constraint("Horizontal", 3))
sketch17.addConstraint(Sketcher.Constraint("DistanceX", 1, 1, 1, 2, Q("9 mm")))
sketch17.addConstraint(Sketcher.Constraint("DistanceX", 3, 2, 3, 1, Q("2.9 mm")))
sketch17.addConstraint(Sketcher.Constraint("DistanceY", 0, 2, 0, 1, Q("1.8 mm")))
sketch17.addConstraint(Sketcher.Constraint("DistanceX", 0, 2, -1, 1, Q("34.5 mm")))
sketch17.addConstraint(Sketcher.Constraint("DistanceY", -1, 1, 0, 2, Q("2.4 mm")))
pad6 = body.newObject("PartDesign::Pad", "Pad005")
pad6.Profile = sketch17
pad6.Length = 2.95

# Sketch on XY plane
sketch18 = body.newObject("Sketcher::SketchObject", "Sketch017")
sketch18.AttachmentSupport = (doc.getObject("XY_Plane"), [""])
sketch18.MapMode = "FlatFace"
sketch18.AttachmentOffset = App.Placement(App.Vector(0, 0, 18.5), App.Rotation())
sketch18.addGeometry(Part.LineSegment(App.Vector(22.2, -16.5, 0), App.Vector(22.2, -28.5, 0)), False)
sketch18.addGeometry(Part.LineSegment(App.Vector(22.2, -28.5, 0), App.Vector(25.2, -28.5, 0)), False)
sketch18.addGeometry(Part.LineSegment(App.Vector(25.2, -28.5, 0), App.Vector(25.2, -16.5, 0)), False)
sketch18.addGeometry(Part.LineSegment(App.Vector(25.2, -16.5, 0), App.Vector(22.2, -16.5, 0)), False)
sketch18.addConstraint(Sketcher.Constraint("Coincident", 0, 2, 1, 1))
sketch18.addConstraint(Sketcher.Constraint("Coincident", 1, 2, 2, 1))
sketch18.addConstraint(Sketcher.Constraint("Coincident", 2, 2, 3, 1))
sketch18.addConstraint(Sketcher.Constraint("Coincident", 3, 2, 0, 1))
sketch18.addConstraint(Sketcher.Constraint("Vertical", 0))
sketch18.addConstraint(Sketcher.Constraint("Horizontal", 1))
sketch18.addConstraint(Sketcher.Constraint("Vertical", 2))
sketch18.addConstraint(Sketcher.Constraint("Horizontal", 3))
sketch18.addConstraint(Sketcher.Constraint("DistanceX", 1, 1, 1, 2, Q("3 mm")))
sketch18.addConstraint(Sketcher.Constraint("DistanceY", 0, 2, 0, 1, Q("12 mm")))
sketch18.addConstraint(Sketcher.Constraint("DistanceX", -1, 1, 0, 2, Q("22.2 mm")))
sketch18.addConstraint(Sketcher.Constraint("DistanceY", 0, 2, -1, 1, Q("28.5 mm")))
pocket12 = body.newObject("PartDesign::Pocket", "Pocket011")
pocket12.Profile = sketch18
pocket12.Length = 3.2

# Sketch on XZ plane
sketch19 = body.newObject("Sketcher::SketchObject", "Sketch018")
sketch19.AttachmentSupport = (doc.getObject("XZ_Plane"), [""])
sketch19.MapMode = "FlatFace"
sketch19.AttachmentOffset = App.Placement(App.Vector(0, 0, 36.5), App.Rotation())
sketch19.addGeometry(Part.Circle(App.Vector(23.7, 17, 0), App.Vector(0, 0, 1), 0.6), False)
sketch19.addConstraint(Sketcher.Constraint("Diameter", 0, Q("1.1 mm")))
sketch19.addConstraint(Sketcher.Constraint("DistanceY", -1, 1, 0, 3, Q("17 mm")))
sketch19.addConstraint(Sketcher.Constraint("DistanceX", -1, 1, 0, 3, Q("23.7 mm")))
pocket13 = body.newObject("PartDesign::Pocket", "Pocket012")
pocket13.Profile = sketch19
pocket13.Length = 26
doc.recompute()

fillet = body.newObject("PartDesign::Fillet", "Fillet")
fillet.Base = (pocket13, edges_at(pocket13, [(25.2, -12.5, 18.5), (25.2, -32.5, 18.5)]))
fillet.Radius = 1.4

# Sketch on YZ plane
sketch20 = body.newObject("Sketcher::SketchObject", "Sketch019")
sketch20.AttachmentSupport = (doc.getObject("YZ_Plane"), [""])
sketch20.MapMode = "FlatFace"
sketch20.addGeometry(Part.LineSegment(App.Vector(-10.5, 15, 0), App.Vector(-17.5, 15, 0)), False)
sketch20.addGeometry(Part.LineSegment(App.Vector(-17.5, 15, 0), App.Vector(-17.5, 17, 0)), False)
sketch20.addGeometry(Part.LineSegment(App.Vector(-17.5, 17, 0), App.Vector(-10.5, 17, 0)), False)
sketch20.addGeometry(Part.LineSegment(App.Vector(-10.5, 17, 0), App.Vector(-10.5, 15, 0)), False)
sketch20.addGeometry(Part.LineSegment(App.Vector(-27.5, 15, 0), App.Vector(-34.5, 15, 0)), False)
sketch20.addGeometry(Part.LineSegment(App.Vector(-34.5, 15, 0), App.Vector(-34.5, 17, 0)), False)
sketch20.addGeometry(Part.LineSegment(App.Vector(-34.5, 17, 0), App.Vector(-27.5, 17, 0)), False)
sketch20.addGeometry(Part.LineSegment(App.Vector(-27.5, 17, 0), App.Vector(-27.5, 15, 0)), False)
sketch20.addConstraint(Sketcher.Constraint("Coincident", 0, 2, 1, 1))
sketch20.addConstraint(Sketcher.Constraint("Coincident", 1, 2, 2, 1))
sketch20.addConstraint(Sketcher.Constraint("Coincident", 2, 2, 3, 1))
sketch20.addConstraint(Sketcher.Constraint("Coincident", 3, 2, 0, 1))
sketch20.addConstraint(Sketcher.Constraint("Coincident", 4, 2, 5, 1))
sketch20.addConstraint(Sketcher.Constraint("Coincident", 5, 2, 6, 1))
sketch20.addConstraint(Sketcher.Constraint("Coincident", 6, 2, 7, 1))
sketch20.addConstraint(Sketcher.Constraint("Coincident", 7, 2, 4, 1))
sketch20.addConstraint(Sketcher.Constraint("Horizontal", 0))
sketch20.addConstraint(Sketcher.Constraint("Vertical", 1))
sketch20.addConstraint(Sketcher.Constraint("Horizontal", 2))
sketch20.addConstraint(Sketcher.Constraint("Vertical", 3))
sketch20.addConstraint(Sketcher.Constraint("Horizontal", 4))
sketch20.addConstraint(Sketcher.Constraint("Vertical", 5))
sketch20.addConstraint(Sketcher.Constraint("Horizontal", 6))
sketch20.addConstraint(Sketcher.Constraint("Vertical", 7))
sketch20.addConstraint(Sketcher.Constraint("Horizontal", 3, 2, 4, 2))
sketch20.addConstraint(Sketcher.Constraint("Horizontal", 2, 2, 5, 2))
sketch20.addConstraint(Sketcher.Constraint("Equal", 2, 4))
sketch20.addConstraint(Sketcher.Constraint("DistanceX", 0, 2, 0, 1, Q("7 mm")))
sketch20.addConstraint(Sketcher.Constraint("DistanceY", 1, 1, 1, 2, Q("2 mm")))
sketch20.addConstraint(Sketcher.Constraint("DistanceY", -1, 1, 0, 2, Q("15 mm")))
sketch20.addConstraint(Sketcher.Constraint("DistanceX", 4, 2, 0, 2, Q("17 mm")))
sketch20.addConstraint(Sketcher.Constraint("DistanceX", 0, 2, -1, 1, Q("17.5 mm")))
pocket14 = body.newObject("PartDesign::Pocket", "Pocket013")
pocket14.Profile = sketch20
pocket14.Length = 1.2
pocket14.Reversed = True
doc.recompute()

chamfer = body.newObject("PartDesign::Chamfer", "Chamfer")
chamfer.Base = (pocket14, edges_at(pocket14, [(22.2, -32.5, 18.5), (22.2, -12.5, 18.5)]))
chamfer.Size = 0.3

doc.recompute()
